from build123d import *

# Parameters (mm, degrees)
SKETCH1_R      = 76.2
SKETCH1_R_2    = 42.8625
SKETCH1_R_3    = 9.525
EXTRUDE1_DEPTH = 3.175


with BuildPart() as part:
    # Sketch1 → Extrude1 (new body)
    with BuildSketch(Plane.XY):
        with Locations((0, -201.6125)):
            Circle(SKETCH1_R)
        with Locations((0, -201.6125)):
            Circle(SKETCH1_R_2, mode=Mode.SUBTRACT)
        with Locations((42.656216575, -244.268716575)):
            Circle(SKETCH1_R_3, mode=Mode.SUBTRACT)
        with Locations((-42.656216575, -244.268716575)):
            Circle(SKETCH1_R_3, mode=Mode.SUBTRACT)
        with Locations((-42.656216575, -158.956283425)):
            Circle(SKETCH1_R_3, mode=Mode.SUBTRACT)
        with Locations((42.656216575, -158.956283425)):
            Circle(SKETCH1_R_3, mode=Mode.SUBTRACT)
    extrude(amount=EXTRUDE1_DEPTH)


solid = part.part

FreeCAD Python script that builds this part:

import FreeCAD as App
import Part
import Sketcher
Q = App.Units.Quantity

doc = App.newDocument("Part")
body = doc.addObject("PartDesign::Body", "Body")

# Sketch on XY plane
sketch1 = body.newObject("Sketcher::SketchObject", "Sketch")
sketch1.AttachmentSupport = (doc.getObject("XY_Plane"), [""])
sketch1.MapMode = "FlatFace"
sketch1.addGeometry([
    Part.Circle(App.Vector(0, -202, 0), App.Vector(0, 0, 1), 76),  # 0
    Part.Circle(App.Vector(-43, -244, 0), App.Vector(0, 0, 1), 10),  # 1
    Part.Circle(App.Vector(43, -244, 0), App.Vector(0, 0, 1), 10),  # 2
    Part.Circle(App.Vector(-43, -159, 0), App.Vector(0, 0, 1), 10),  # 3
    Part.Circle(App.Vector(0, -202, 0), App.Vector(0, 0, 1), 43),  # 4
    Part.Circle(App.Vector(43, -159, 0), App.Vector(0, 0, 1), 10),  # 5
], False)
sketch1.addConstraint([
    Sketcher.Constraint("Coincident", 4, 3, 0, 3),
    Sketcher.Constraint("Equal", 1, 2),
    Sketcher.Constraint("Equal", 2, 3),
    Sketcher.Constraint("Equal", 3, 5),
    Sketcher.Constraint("Symmetric", 1, 3, 2, 3, -2),
    Sketcher.Constraint("Symmetric", 3, 3, 5, 3, -2),
    Sketcher.Constraint("PointOnObject", 0, 3, -2),
    Sketcher.Constraint("Vertical", 1, 3, 3, 3),
    Sketcher.Constraint("Diameter", 0, Q("6 in")),
    Sketcher.Constraint("Diameter", 1, Q("0.75 in")),
    Sketcher.Constraint("Diameter", 4, Q("3.375 in")),
    Sketcher.Constraint("DistanceY", 0, 3, -1, 1, Q("7.9375 in")),
    Sketcher.Constraint("DistanceX", 1, 3, -1, 1, Q("42.656217 mm")),
    Sketcher.Constraint("DistanceY", 1, 3, -1, 1, Q("244.268717 mm")),
    Sketcher.Constraint("DistanceY", 3, 3, -1, 1, Q("158.956283 mm")),
])
pad1 = body.newObject("PartDesign::Pad", "Pad")
pad1.Profile = sketch1
pad1.Length = Q("0.125 in")

doc.recompute()
